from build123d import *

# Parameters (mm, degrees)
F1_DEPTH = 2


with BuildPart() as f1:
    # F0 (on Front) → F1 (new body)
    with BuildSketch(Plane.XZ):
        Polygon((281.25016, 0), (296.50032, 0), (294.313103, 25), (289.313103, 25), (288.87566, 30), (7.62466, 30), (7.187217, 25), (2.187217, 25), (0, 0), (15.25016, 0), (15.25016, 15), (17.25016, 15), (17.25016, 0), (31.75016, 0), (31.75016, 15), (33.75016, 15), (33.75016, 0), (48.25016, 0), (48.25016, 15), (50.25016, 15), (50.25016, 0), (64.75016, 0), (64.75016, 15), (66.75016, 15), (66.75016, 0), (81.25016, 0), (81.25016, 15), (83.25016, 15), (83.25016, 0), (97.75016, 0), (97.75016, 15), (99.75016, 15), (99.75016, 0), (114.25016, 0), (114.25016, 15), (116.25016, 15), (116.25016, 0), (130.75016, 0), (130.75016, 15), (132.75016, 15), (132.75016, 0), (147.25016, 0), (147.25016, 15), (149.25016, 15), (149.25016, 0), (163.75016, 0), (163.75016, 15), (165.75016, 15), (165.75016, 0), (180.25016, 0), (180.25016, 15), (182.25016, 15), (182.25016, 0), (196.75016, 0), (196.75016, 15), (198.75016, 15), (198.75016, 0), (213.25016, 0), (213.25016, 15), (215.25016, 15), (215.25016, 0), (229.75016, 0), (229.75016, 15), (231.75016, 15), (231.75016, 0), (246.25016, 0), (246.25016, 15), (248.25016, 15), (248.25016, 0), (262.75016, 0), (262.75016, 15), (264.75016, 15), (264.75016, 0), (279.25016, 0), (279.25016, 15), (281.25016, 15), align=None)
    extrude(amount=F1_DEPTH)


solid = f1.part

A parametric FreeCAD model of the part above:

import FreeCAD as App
import Part
import Sketcher

V = App.Vector
Q = App.Units.Quantity


def add_polygon(sketch, points):
    """Adds a closed chain of lines whose ends are joined by coincident constraints."""
    first, n = sketch.GeometryCount, len(points)
    for a, b in zip(points, points[1:] + points[:1]):
        sketch.addGeometry(Part.LineSegment(App.Vector(*a, 0), App.Vector(*b, 0)), False)
    for i in range(n):
        sketch.addConstraint(Sketcher.Constraint("Coincident", first + i, 2, first + (i + 1) % n, 1))

doc = App.newDocument("Part")
body = doc.addObject("PartDesign::Body", "Body")

# Sketch on XZ plane
sketch1 = body.newObject("Sketcher::SketchObject", "Sketch")
sketch1.AttachmentSupport = (doc.getObject("XZ_Plane"), [""])
sketch1.MapMode = "FlatFace"
add_polygon(sketch1, [(281.3, 0), (296.5, 0), (294.3, 25), (289.3, 25), (288.9, 30), (7.6, 30), (7.2, 25), (2.2, 25), (0, 0), (15.3, 0), (15.3, 15), (17.3, 15), (17.3, 0), (31.8, 0), (31.8, 15), (33.8, 15), (33.8, 0), (48.3, 0), (48.3, 15), (50.3, 15), (50.3, 0), (64.8, 0), (64.8, 15), (66.8, 15), (66.8, 0), (81.3, 0), (81.3, 15), (83.3, 15), (83.3, 0), (97.8, 0), (97.8, 15), (99.8, 15), (99.8, 0), (114.3, 0), (114.3, 15), (116.3, 15), (116.3, 0), (130.8, 0), (130.8, 15), (132.8, 15), (132.8, 0), (147.3, 0), (147.3, 15), (149.3, 15), (149.3, 0), (163.8, 0), (163.8, 15), (165.8, 15), (165.8, 0), (180.3, 0), (180.3, 15), (182.3, 15), (182.3, 0), (196.8, 0), (196.8, 15), (198.8, 15), (198.8, 0), (213.3, 0), (213.3, 15), (215.3, 15), (215.3, 0), (229.8, 0), (229.8, 15), (231.8, 15), (231.8, 0), (246.3, 0), (246.3, 15), (248.3, 15), (248.3, 0), (262.8, 0), (262.8, 15), (264.8, 15), (264.8, 0), (279.3, 0), (279.3, 15), (281.3, 15)])  # lines 0-75
sketch1.addConstraint([
    Sketcher.Constraint("Horizontal", 0),
    Sketcher.Constraint("Horizontal", 2),
    Sketcher.Constraint("Horizontal", 4),
    Sketcher.Constraint("Horizontal", 6),
    Sketcher.Constraint("Horizontal", 8),
    Sketcher.Constraint("Vertical", 9),
    Sketcher.Constraint("Horizontal", 10),
    Sketcher.Constraint("Vertical", 11),
    Sketcher.Constraint("Horizontal", 12),
    Sketcher.Constraint("Vertical", 13),
    Sketcher.Constraint("Horizontal", 14),
    Sketcher.Constraint("Vertical", 15),
    Sketcher.Constraint("Horizontal", 16),
    Sketcher.Constraint("Vertical", 17),
    Sketcher.Constraint("Horizontal", 18),
    Sketcher.Constraint("Vertical", 19),
    Sketcher.Constraint("Horizontal", 20),
    Sketcher.Constraint("Vertical", 21),
    Sketcher.Constraint("Horizontal", 22),
    Sketcher.Constraint("Vertical", 23),
    Sketcher.Constraint("Horizontal", 24),
    Sketcher.Constraint("Vertical", 25),
    Sketcher.Constraint("Horizontal", 26),
    Sketcher.Constraint("Vertical", 27),
    Sketcher.Constraint("Horizontal", 28),
    Sketcher.Constraint("Vertical", 29),
    Sketcher.Constraint("Horizontal", 30),
    Sketcher.Constraint("Vertical", 31),
    Sketcher.Constraint("Horizontal", 32),
    Sketcher.Constraint("Vertical", 33),
    Sketcher.Constraint("Horizontal", 34),
    Sketcher.Constraint("Vertical", 35),
    Sketcher.Constraint("Horizontal", 36),
    Sketcher.Constraint("Vertical", 37),
    Sketcher.Constraint("Horizontal", 38),
    Sketcher.Constraint("Vertical", 39),
    Sketcher.Constraint("Horizontal", 40),
    Sketcher.Constraint("Vertical", 41),
    Sketcher.Constraint("Horizontal", 42),
    Sketcher.Constraint("Vertical", 43),
    Sketcher.Constraint("Horizontal", 44),
    Sketcher.Constraint("Vertical", 45),
    Sketcher.Constraint("Horizontal", 46),
    Sketcher.Constraint("Vertical", 47),
    Sketcher.Constraint("Horizontal", 48),
    Sketcher.Constraint("Vertical", 49),
    Sketcher.Constraint("Horizontal", 50),
    Sketcher.Constraint("Vertical", 51),
    Sketcher.Constraint("Horizontal", 52),
    Sketcher.Constraint("Vertical", 53),
    Sketcher.Constraint("Horizontal", 54),
    Sketcher.Constraint("Vertical", 55),
    Sketcher.Constraint("Horizontal", 56),
    Sketcher.Constraint("Vertical", 57),
    Sketcher.Constraint("Horizontal", 58),
    Sketcher.Constraint("Vertical", 59),
    Sketcher.Constraint("Horizontal", 60),
    Sketcher.Constraint("Vertical", 61),
    Sketcher.Constraint("Horizontal", 62),
    Sketcher.Constraint("Vertical", 63),
    Sketcher.Constraint("Horizontal", 64),
    Sketcher.Constraint("Vertical", 65),
    Sketcher.Constraint("Horizontal", 66),
    Sketcher.Constraint("Vertical", 67),
    Sketcher.Constraint("Horizontal", 68),
    Sketcher.Constraint("Vertical", 69),
    Sketcher.Constraint("Horizontal", 70),
    Sketcher.Constraint("Vertical", 71),
    Sketcher.Constraint("Horizontal", 72),
    Sketcher.Constraint("Vertical", 73),
    Sketcher.Constraint("Horizontal", 74),
    Sketcher.Constraint("Vertical", 75),
    Sketcher.Constraint("Coincident", 7, 2, -1, 1),
    Sketcher.Constraint("PointOnObject", 0, 2, -1),
    Sketcher.Constraint("PointOnObject", 11, 2, -1),
    Sketcher.Constraint("PointOnObject", 15, 2, -1),
    Sketcher.Constraint("PointOnObject", 19, 2, -1),
    Sketcher.Constraint("PointOnObject", 23, 2, -1),
    Sketcher.Constraint("PointOnObject", 27, 2, -1),
    Sketcher.Constraint("PointOnObject", 31, 2, -1),
    Sketcher.Constraint("PointOnObject", 35, 2, -1),
    Sketcher.Constraint("PointOnObject", 39, 2, -1),
    Sketcher.Constraint("PointOnObject", 43, 2, -1),
    Sketcher.Constraint("PointOnObject", 47, 2, -1),
    Sketcher.Constraint("PointOnObject", 51, 2, -1),
    Sketcher.Constraint("PointOnObject", 55, 2, -1),
    Sketcher.Constraint("PointOnObject", 59, 2, -1),
    Sketcher.Constraint("PointOnObject", 63, 2, -1),
    Sketcher.Constraint("PointOnObject", 67, 2, -1),
    Sketcher.Constraint("PointOnObject", 71, 2, -1),
    Sketcher.Constraint("Parallel", 1, 3),
    Sketcher.Constraint("Parallel", 5, 7),
    Sketcher.Constraint("Horizontal", 2, 2, 5, 2),
    Sketcher.Constraint("Horizontal", 10, 2, 13, 2),
    Sketcher.Constraint("Horizontal", 14, 2, 17, 2),
    Sketcher.Constraint("Horizontal", 18, 2, 21, 2),
    Sketcher.Constraint("Horizontal", 22, 2, 25, 2),
    Sketcher.Constraint("Horizontal", 26, 2, 29, 2),
    Sketcher.Constraint("Horizontal", 30, 2, 33, 2),
    Sketcher.Constraint("Horizontal", 34, 2, 37, 2),
    Sketcher.Constraint("Horizontal", 38, 2, 41, 2),
    Sketcher.Constraint("Horizontal", 42, 2, 45, 2),
    Sketcher.Constraint("Horizontal", 46, 2, 49, 2),
    Sketcher.Constraint("Horizontal", 50, 2, 53, 2),
    Sketcher.Constraint("Horizontal", 54, 2, 57, 2),
    Sketcher.Constraint("Horizontal", 58, 2, 61, 2),
    Sketcher.Constraint("Horizontal", 62, 2, 65, 2),
    Sketcher.Constraint("Horizontal", 66, 2, 69, 2),
    Sketcher.Constraint("Horizontal", 70, 2, 73, 2),
    Sketcher.Constraint("Equal", 2, 6),
    Sketcher.Constraint("Equal", 0, 8),
    Sketcher.Constraint("Equal", 10, 14),
    Sketcher.Constraint("Equal", 12, 16),
    Sketcher.Constraint("Equal", 14, 18),
    Sketcher.Constraint("Equal", 16, 20),
    Sketcher.Constraint("Equal", 18, 22),
    Sketcher.Constraint("Equal", 20, 24),
    Sketcher.Constraint("Equal", 22, 26),
    Sketcher.Constraint("Equal", 24, 28),
    Sketcher.Constraint("Equal", 26, 30),
    Sketcher.Constraint("Equal", 28, 32),
    Sketcher.Constraint("Equal", 30, 34),
    Sketcher.Constraint("Equal", 32, 36),
    Sketcher.Constraint("Equal", 34, 38),
    Sketcher.Constraint("Equal", 36, 40),
    Sketcher.Constraint("Equal", 38, 42),
    Sketcher.Constraint("Equal", 40, 44),
    Sketcher.Constraint("Equal", 42, 46),
    Sketcher.Constraint("Equal", 44, 48),
    Sketcher.Constraint("Equal", 46, 50),
    Sketcher.Constraint("Equal", 48, 52),
    Sketcher.Constraint("Equal", 50, 54),
    Sketcher.Constraint("Equal", 52, 56),
    Sketcher.Constraint("Equal", 54, 58),
    Sketcher.Constraint("Equal", 56, 60),
    Sketcher.Constraint("Equal", 58, 62),
    Sketcher.Constraint("Equal", 60, 64),
    Sketcher.Constraint("Equal", 62, 66),
    Sketcher.Constraint("Equal", 64, 68),
    Sketcher.Constraint("Equal", 66, 70),
    Sketcher.Constraint("Equal", 68, 72),
    Sketcher.Constraint("Equal", 70, 74),
    Sketcher.Constraint("Equal", 3, 5),
    Sketcher.Constraint("DistanceX", 2, 2, 2, 1, 5.0),
    Sketcher.Constraint("DistanceX", 10, 1, 10, 2, 2.0),
    Sketcher.Constraint("DistanceY", 9, 1, 9, 2, 15.0),
    Sketcher.Constraint("Angle", 1, Q("95.000001 deg")),
    Sketcher.Constraint("DistanceX", 12, 1, 12, 2, 14.5),
    Sketcher.Constraint("DistanceY", -1, 1, 1, 2, 25.0),
    Sketcher.Constraint("DistanceY", -1, 1, 3, 2, 30.0),
    Sketcher.Constraint("DistanceX", 4, 2, 4, 1, 281.251),
])
pad1 = body.newObject("PartDesign::Pad", "Pad")
pad1.Profile = sketch1
pad1.Length = 2

doc.recompute()
